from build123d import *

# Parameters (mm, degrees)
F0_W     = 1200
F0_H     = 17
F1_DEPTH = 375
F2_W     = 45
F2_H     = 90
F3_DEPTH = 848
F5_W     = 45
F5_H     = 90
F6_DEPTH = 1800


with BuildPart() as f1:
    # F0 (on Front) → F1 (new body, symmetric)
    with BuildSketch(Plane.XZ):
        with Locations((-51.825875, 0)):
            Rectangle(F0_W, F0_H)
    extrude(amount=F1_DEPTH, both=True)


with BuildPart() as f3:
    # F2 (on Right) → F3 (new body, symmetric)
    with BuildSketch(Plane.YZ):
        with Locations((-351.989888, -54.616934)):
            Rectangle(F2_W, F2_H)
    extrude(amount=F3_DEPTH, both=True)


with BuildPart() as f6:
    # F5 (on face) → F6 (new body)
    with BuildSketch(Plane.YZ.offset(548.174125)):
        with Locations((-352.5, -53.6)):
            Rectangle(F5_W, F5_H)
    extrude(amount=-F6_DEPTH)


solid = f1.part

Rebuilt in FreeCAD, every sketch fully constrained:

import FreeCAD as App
import Part
import Sketcher
from FreeCAD import Vector
Q = App.Units.Quantity

doc = App.newDocument("Part")
body = doc.addObject("PartDesign::Body", "Body")

# Sketch on XZ plane
sketch1 = doc.addObject("Sketcher::SketchObject", "Sketch")
body.addObject(sketch1)
sketch1.AttachmentSupport = (doc.XZ_Plane, [""])
sketch1.MapMode = "FlatFace"
sketch1.addGeometry([
    Part.LineSegment(Vector(-652, 8, 0), Vector(-652, -8, 0)),
    Part.LineSegment(Vector(-652, -8, 0), Vector(548, -8, 0)),
    Part.LineSegment(Vector(548, -8, 0), Vector(548, 8, 0)),
    Part.LineSegment(Vector(548, 8, 0), Vector(-652, 8, 0)),
], False)
sketch1.addConstraint([
    Sketcher.Constraint("Coincident", 0, 2, 1, 1),
    Sketcher.Constraint("Coincident", 1, 2, 2, 1),
    Sketcher.Constraint("Coincident", 2, 2, 3, 1),
    Sketcher.Constraint("Coincident", 3, 2, 0, 1),
    Sketcher.Constraint("Vertical", 0),
    Sketcher.Constraint("Horizontal", 1),
    Sketcher.Constraint("Vertical", 2),
    Sketcher.Constraint("Horizontal", 3),
    Sketcher.Constraint("DistanceX", 1, 1, 1, 2, Q("1200 mm")),
    Sketcher.Constraint("DistanceY", 0, 2, 0, 1, Q("17 mm")),
    Sketcher.Constraint("DistanceY", 0, 2, -1, 1, Q("8.5 mm")),
    Sketcher.Constraint("DistanceX", 0, 2, -1, 1, Q("651.825875 mm")),
])
pad1 = doc.addObject("PartDesign::Pad", "Pad")
body.addObject(pad1)
pad1.Profile = sketch1
pad1.Length = 750
pad1.Midplane = True
body2 = doc.addObject("PartDesign::Body", "Body001")

# Sketch on YZ plane
sketch2 = doc.addObject("Sketcher::SketchObject", "Sketch001")
body2.addObject(sketch2)
sketch2.AttachmentSupport = (doc.getObject("YZ_Plane001"), [""])
sketch2.MapMode = "FlatFace"
sketch2.addGeometry([
    Part.LineSegment(Vector(-374, -10, 0), Vector(-374, -100, 0)),
    Part.LineSegment(Vector(-374, -100, 0), Vector(-329, -100, 0)),
    Part.LineSegment(Vector(-329, -100, 0), Vector(-329, -10, 0)),
    Part.LineSegment(Vector(-329, -10, 0), Vector(-374, -10, 0)),
], False)
sketch2.addConstraint([
    Sketcher.Constraint("Coincident", 0, 2, 1, 1),
    Sketcher.Constraint("Coincident", 1, 2, 2, 1),
    Sketcher.Constraint("Coincident", 2, 2, 3, 1),
    Sketcher.Constraint("Coincident", 3, 2, 0, 1),
    Sketcher.Constraint("Vertical", 0),
    Sketcher.Constraint("Horizontal", 1),
    Sketcher.Constraint("Vertical", 2),
    Sketcher.Constraint("Horizontal", 3),
    Sketcher.Constraint("DistanceX", 1, 1, 1, 2, Q("45 mm")),
    Sketcher.Constraint("DistanceY", 0, 2, 0, 1, Q("90 mm")),
    Sketcher.Constraint("DistanceX", 0, 2, -1, 1, Q("374.489888 mm")),
    Sketcher.Constraint("DistanceY", 0, 2, -1, 1, Q("99.616934 mm")),
])
pad2 = doc.addObject("PartDesign::Pad", "Pad001")
body2.addObject(pad2)
pad2.Profile = sketch2
pad2.Length = 1696
pad2.Midplane = True
body3 = doc.addObject("PartDesign::Body", "Body002")

# Sketch on YZ plane
sketch3 = doc.addObject("Sketcher::SketchObject", "Sketch002")
body3.addObject(sketch3)
sketch3.AttachmentSupport = (doc.getObject("YZ_Plane002"), [""])
sketch3.MapMode = "FlatFace"
sketch3.AttachmentOffset = App.Placement(Vector(0, 0, 548.174125), App.Rotation())
sketch3.addGeometry([
    Part.LineSegment(Vector(-375, -9, 0), Vector(-375, -99, 0)),
    Part.LineSegment(Vector(-375, -99, 0), Vector(-330, -99, 0)),
    Part.LineSegment(Vector(-330, -99, 0), Vector(-330, -9, 0)),
    Part.LineSegment(Vector(-330, -9, 0), Vector(-375, -9, 0)),
], False)
sketch3.addConstraint([
    Sketcher.Constraint("Coincident", 0, 2, 1, 1),
    Sketcher.Constraint("Coincident", 1, 2, 2, 1),
    Sketcher.Constraint("Coincident", 2, 2, 3, 1),
    Sketcher.Constraint("Coincident", 3, 2, 0, 1),
    Sketcher.Constraint("Vertical", 0),
    Sketcher.Constraint("Horizontal", 1),
    Sketcher.Constraint("Vertical", 2),
    Sketcher.Constraint("Horizontal", 3),
    Sketcher.Constraint("DistanceX", 1, 1, 1, 2, Q("45 mm")),
    Sketcher.Constraint("DistanceY", 0, 2, 0, 1, Q("90 mm")),
    Sketcher.Constraint("DistanceX", 0, 2, -1, 1, Q("375 mm")),
    Sketcher.Constraint("DistanceY", 0, 2, -1, 1, Q("98.6 mm")),
])
pad3 = doc.addObject("PartDesign::Pad", "Pad002")
body3.addObject(pad3)
pad3.Profile = sketch3
pad3.Length = 1800
pad3.Reversed = True
body2.Visibility = False
body3.Visibility = False

doc.recompute()
